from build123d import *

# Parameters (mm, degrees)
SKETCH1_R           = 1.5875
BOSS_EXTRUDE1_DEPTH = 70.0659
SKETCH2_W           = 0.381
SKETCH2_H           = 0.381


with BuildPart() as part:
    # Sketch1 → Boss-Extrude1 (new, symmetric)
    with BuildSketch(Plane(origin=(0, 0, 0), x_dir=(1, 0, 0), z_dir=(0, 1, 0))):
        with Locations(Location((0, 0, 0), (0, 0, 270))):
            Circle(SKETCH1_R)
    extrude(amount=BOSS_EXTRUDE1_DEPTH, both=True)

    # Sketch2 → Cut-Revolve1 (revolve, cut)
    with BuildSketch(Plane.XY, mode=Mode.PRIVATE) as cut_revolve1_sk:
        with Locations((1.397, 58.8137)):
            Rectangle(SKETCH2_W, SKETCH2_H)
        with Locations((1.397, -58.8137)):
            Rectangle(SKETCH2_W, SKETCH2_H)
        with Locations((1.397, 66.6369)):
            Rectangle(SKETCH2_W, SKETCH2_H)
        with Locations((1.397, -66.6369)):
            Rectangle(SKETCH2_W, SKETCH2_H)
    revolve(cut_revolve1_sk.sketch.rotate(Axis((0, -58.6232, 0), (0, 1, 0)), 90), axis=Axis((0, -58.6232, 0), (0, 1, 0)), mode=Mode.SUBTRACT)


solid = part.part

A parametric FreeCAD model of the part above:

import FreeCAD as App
import Part
import Sketcher

V = App.Vector
Q = App.Units.Quantity


def add_polygon(sketch, points):
    """Adds a closed chain of lines whose ends are joined by coincident constraints."""
    first, n = sketch.GeometryCount, len(points)
    for a, b in zip(points, points[1:] + points[:1]):
        sketch.addGeometry(Part.LineSegment(App.Vector(*a, 0), App.Vector(*b, 0)), False)
    for i in range(n):
        sketch.addConstraint(Sketcher.Constraint("Coincident", first + i, 2, first + (i + 1) % n, 1))

doc = App.newDocument("Part")
params = doc.addObject("Spreadsheet::Sheet", "Params")
for row, (alias, value) in enumerate([
    ("sketch1_diameter", "0.125 in"),
    ("pad1_length", "5.517 in"),
    ("sketch2_width", "0.015 in"),
    ("groove_angle", "360 deg"),
], start=1):
    params.set(f"A{row}", alias)
    params.set(f"B{row}", "=" + value)
    params.setAlias(f"B{row}", alias)

body = doc.addObject("PartDesign::Body", "Body")

sketch1 = doc.addObject("Sketcher::SketchObject", "Sketch")
body.addObject(sketch1)
sketch1.AttachmentSupport = (doc.XZ_Plane, [""])
sketch1.MapMode = "FlatFace"
sketch1.addGeometry(Part.Circle(V(0, 0, 0), V(0, 0, 1), 1.5875), False)
sketch1.addConstraint([
    Sketcher.Constraint("Coincident", 0, 3, -1, 1),
    Sketcher.Constraint("Diameter", 0, Q("0.125 in")),
])
sketch1.setExpression("Constraints[1]", "Params.sketch1_diameter")
pad1 = doc.addObject("PartDesign::Pad", "Pad")
body.addObject(pad1)
pad1.Profile = sketch1
pad1.setExpression("Length", "Params.pad1_length")
pad1.Midplane = True

sketch2 = doc.addObject("Sketcher::SketchObject", "Sketch001")
body.addObject(sketch2)
sketch2.AttachmentSupport = (doc.XY_Plane, [""])
sketch2.MapMode = "FlatFace"
add_polygon(sketch2, [(1.2065, 59.0042), (1.2065, 58.6232), (1.5875, 58.6232), (1.5875, 59.0042)])
add_polygon(sketch2, [(1.2065, -58.6232), (1.2065, -59.0042), (1.5875, -59.0042), (1.5875, -58.6232)])
add_polygon(sketch2, [(1.2065, 66.8274), (1.2065, 66.4464), (1.5875, 66.4464), (1.5875, 66.8274)])
add_polygon(sketch2, [(1.2065, -66.4464), (1.2065, -66.8274), (1.5875, -66.8274), (1.5875, -66.4464)])
sketch2.addConstraint([
    Sketcher.Constraint("Vertical", 0),
    Sketcher.Constraint("Horizontal", 1),
    Sketcher.Constraint("Vertical", 2),
    Sketcher.Constraint("Horizontal", 3),
    Sketcher.Constraint("Vertical", 4),
    Sketcher.Constraint("Horizontal", 5),
    Sketcher.Constraint("Vertical", 6),
    Sketcher.Constraint("Horizontal", 7),
    Sketcher.Constraint("Vertical", 8),
    Sketcher.Constraint("Horizontal", 9),
    Sketcher.Constraint("Vertical", 10),
    Sketcher.Constraint("Horizontal", 11),
    Sketcher.Constraint("Vertical", 12),
    Sketcher.Constraint("Horizontal", 13),
    Sketcher.Constraint("Vertical", 14),
    Sketcher.Constraint("Horizontal", 15),
    Sketcher.Constraint("Symmetric", 3, 2, 4, 2, -1),
    Sketcher.Constraint("Symmetric", 1, 2, 6, 2, -1),
    Sketcher.Constraint("Symmetric", 11, 2, 12, 2, -1),
    Sketcher.Constraint("Symmetric", 9, 2, 14, 2, -1),
    Sketcher.Constraint("Vertical", 7, 2, 8, 2),
    Sketcher.Constraint("Vertical", 6, 2, 9, 2),
    Sketcher.Constraint("Equal", 15, 0),
    Sketcher.Constraint("Equal", 6, 8),
    Sketcher.Constraint("DistanceX", 1, 1, 1, 2, Q("0.015 in")),
    Sketcher.Constraint("DistanceY", -1, 1, 0, 2, Q("2.308 in")),
    Sketcher.Constraint("DistanceX", -1, 1, 1, 2, Q("0.0625 in")),
    Sketcher.Constraint("DistanceY", -1, 1, 8, 2, Q("2.616 in")),
])
sketch2.setExpression("Constraints[40]", "Params.sketch2_width")
groove = doc.addObject("PartDesign::Groove", "Groove")
body.addObject(groove)
groove.Profile = sketch2
groove.ReferenceAxis = (sketch2, ["V_Axis"])
groove.setExpression("Angle", "Params.groove_angle")

doc.recompute()
